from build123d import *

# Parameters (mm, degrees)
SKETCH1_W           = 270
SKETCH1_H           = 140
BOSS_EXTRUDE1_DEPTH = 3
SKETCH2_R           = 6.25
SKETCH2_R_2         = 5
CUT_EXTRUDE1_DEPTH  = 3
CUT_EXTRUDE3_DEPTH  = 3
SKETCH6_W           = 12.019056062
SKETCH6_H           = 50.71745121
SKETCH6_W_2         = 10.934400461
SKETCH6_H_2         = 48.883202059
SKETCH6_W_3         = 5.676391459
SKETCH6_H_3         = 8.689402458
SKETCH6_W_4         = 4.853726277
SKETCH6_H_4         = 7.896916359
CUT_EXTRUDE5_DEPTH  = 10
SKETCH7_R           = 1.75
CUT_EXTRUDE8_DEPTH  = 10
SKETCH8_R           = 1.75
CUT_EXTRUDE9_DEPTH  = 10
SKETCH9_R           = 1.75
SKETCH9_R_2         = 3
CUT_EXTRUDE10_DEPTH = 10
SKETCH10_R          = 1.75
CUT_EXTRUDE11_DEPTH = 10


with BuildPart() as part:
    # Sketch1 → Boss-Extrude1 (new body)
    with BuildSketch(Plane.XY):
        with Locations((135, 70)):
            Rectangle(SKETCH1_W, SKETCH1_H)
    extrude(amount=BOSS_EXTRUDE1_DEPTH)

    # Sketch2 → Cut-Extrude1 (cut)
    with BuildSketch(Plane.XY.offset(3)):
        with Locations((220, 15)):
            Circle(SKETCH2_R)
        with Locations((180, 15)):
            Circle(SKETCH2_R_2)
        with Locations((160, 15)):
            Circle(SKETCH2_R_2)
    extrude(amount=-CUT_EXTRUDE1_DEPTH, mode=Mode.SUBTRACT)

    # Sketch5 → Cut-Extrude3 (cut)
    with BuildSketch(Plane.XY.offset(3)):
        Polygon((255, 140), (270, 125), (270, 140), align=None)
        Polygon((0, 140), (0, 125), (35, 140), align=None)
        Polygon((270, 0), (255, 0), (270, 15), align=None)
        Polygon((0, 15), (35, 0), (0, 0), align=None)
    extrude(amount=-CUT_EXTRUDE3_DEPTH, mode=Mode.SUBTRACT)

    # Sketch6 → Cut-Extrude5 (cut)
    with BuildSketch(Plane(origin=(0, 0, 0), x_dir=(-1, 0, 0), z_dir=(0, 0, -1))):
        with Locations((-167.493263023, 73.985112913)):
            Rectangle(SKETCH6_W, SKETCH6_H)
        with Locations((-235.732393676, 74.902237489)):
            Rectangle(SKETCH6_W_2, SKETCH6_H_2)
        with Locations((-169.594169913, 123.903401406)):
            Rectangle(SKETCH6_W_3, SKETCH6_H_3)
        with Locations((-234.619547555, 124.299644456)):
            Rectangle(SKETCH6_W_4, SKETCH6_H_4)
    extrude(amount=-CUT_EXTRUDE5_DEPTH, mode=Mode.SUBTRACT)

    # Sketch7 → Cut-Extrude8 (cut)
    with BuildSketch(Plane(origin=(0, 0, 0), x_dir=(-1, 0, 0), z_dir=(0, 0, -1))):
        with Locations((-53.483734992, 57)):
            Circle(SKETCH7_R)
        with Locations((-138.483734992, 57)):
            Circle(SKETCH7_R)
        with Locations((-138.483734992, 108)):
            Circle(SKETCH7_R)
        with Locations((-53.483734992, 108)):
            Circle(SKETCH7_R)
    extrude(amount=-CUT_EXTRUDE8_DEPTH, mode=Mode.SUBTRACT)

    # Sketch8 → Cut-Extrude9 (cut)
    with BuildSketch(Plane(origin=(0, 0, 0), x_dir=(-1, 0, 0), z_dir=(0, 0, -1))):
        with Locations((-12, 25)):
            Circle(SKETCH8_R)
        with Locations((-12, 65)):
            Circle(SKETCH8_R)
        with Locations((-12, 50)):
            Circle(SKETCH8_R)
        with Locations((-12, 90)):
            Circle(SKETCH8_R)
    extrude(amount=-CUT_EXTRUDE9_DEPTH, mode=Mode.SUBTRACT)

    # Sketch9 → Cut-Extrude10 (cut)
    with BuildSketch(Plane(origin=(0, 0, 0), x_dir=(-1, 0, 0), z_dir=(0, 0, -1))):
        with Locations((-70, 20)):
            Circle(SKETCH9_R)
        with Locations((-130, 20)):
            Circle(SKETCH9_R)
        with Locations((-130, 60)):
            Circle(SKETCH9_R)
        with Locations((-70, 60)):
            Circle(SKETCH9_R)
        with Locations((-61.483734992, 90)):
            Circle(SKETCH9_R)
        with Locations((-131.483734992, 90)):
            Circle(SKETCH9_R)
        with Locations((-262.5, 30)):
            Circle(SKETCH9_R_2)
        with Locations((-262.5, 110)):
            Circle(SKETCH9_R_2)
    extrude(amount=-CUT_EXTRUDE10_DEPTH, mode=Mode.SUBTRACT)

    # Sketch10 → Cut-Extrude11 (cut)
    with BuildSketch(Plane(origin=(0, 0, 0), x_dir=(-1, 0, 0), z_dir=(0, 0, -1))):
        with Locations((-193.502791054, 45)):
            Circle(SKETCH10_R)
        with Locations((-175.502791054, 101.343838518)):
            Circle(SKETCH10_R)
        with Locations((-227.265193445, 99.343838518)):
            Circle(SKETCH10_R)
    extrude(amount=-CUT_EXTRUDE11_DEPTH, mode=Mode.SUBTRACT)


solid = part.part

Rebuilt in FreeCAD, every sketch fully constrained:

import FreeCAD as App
import Part
import Sketcher
Q = App.Units.Quantity

doc = App.newDocument("Part")
body = doc.addObject("PartDesign::Body", "Body")

# Sketch on XY plane
sketch1 = body.newObject("Sketcher::SketchObject", "Sketch")
sketch1.AttachmentSupport = (doc.getObject("XY_Plane"), [""])
sketch1.MapMode = "FlatFace"
sketch1.addGeometry([
    Part.LineSegment(App.Vector(0, 140, 0), App.Vector(0, 0, 0)),
    Part.LineSegment(App.Vector(0, 0, 0), App.Vector(270, 0, 0)),
    Part.LineSegment(App.Vector(270, 0, 0), App.Vector(270, 140, 0)),
    Part.LineSegment(App.Vector(270, 140, 0), App.Vector(0, 140, 0)),
], False)
sketch1.addConstraint([
    Sketcher.Constraint("Coincident", 0, 2, 1, 1),
    Sketcher.Constraint("Coincident", 1, 2, 2, 1),
    Sketcher.Constraint("Coincident", 2, 2, 3, 1),
    Sketcher.Constraint("Coincident", 3, 2, 0, 1),
    Sketcher.Constraint("Vertical", 0),
    Sketcher.Constraint("Horizontal", 1),
    Sketcher.Constraint("Vertical", 2),
    Sketcher.Constraint("Horizontal", 3),
    Sketcher.Constraint("Coincident", 0, 2, -1, 1),
    Sketcher.Constraint("DistanceX", 1, 1, 1, 2, Q("270 mm")),
    Sketcher.Constraint("DistanceY", 0, 2, 0, 1, Q("140 mm")),
])
pad1 = body.newObject("PartDesign::Pad", "Pad")
pad1.Profile = sketch1
pad1.Length = 3

# Sketch on XY plane
sketch2 = body.newObject("Sketcher::SketchObject", "Sketch001")
sketch2.AttachmentSupport = (doc.getObject("XY_Plane"), [""])
sketch2.MapMode = "FlatFace"
sketch2.AttachmentOffset = App.Placement(App.Vector(0, 0, 3), App.Rotation())
sketch2.addGeometry([
    Part.Circle(App.Vector(220, 15, 0), App.Vector(0, 0, 1), 6),
    Part.Circle(App.Vector(180, 15, 0), App.Vector(0, 0, 1), 5),
    Part.Circle(App.Vector(160, 15, 0), App.Vector(0, 0, 1), 5),
], False)
sketch2.addConstraint([
    Sketcher.Constraint("Equal", 1, 2),
    Sketcher.Constraint("Horizontal", 0, 3, 1, 3),
    Sketcher.Constraint("Horizontal", 1, 3, 2, 3),
    Sketcher.Constraint("Diameter", 1, Q("10 mm")),
    Sketcher.Constraint("Diameter", 0, Q("12.5 mm")),
    Sketcher.Constraint("DistanceX", -1, 1, 0, 3, Q("220 mm")),
    Sketcher.Constraint("DistanceY", -1, 1, 0, 3, Q("15 mm")),
    Sketcher.Constraint("DistanceX", -1, 1, 1, 3, Q("180 mm")),
    Sketcher.Constraint("DistanceX", -1, 1, 2, 3, Q("160 mm")),
])
pocket1 = body.newObject("PartDesign::Pocket", "Pocket")
pocket1.Profile = sketch2
pocket1.Length = 3

# Sketch on XY plane
sketch3 = body.newObject("Sketcher::SketchObject", "Sketch002")
sketch3.AttachmentSupport = (doc.getObject("XY_Plane"), [""])
sketch3.MapMode = "FlatFace"
sketch3.AttachmentOffset = App.Placement(App.Vector(0, 0, 3), App.Rotation())
sketch3.addGeometry([
    Part.LineSegment(App.Vector(255, 140, 0), App.Vector(270, 125, 0)),  # 0
    Part.LineSegment(App.Vector(270, 125, 0), App.Vector(270, 140, 0)),  # 1
    Part.LineSegment(App.Vector(270, 140, 0), App.Vector(255, 140, 0)),  # 2
    Part.LineSegment(App.Vector(0, 140, 0), App.Vector(0, 125, 0)),  # 3
    Part.LineSegment(App.Vector(0, 125, 0), App.Vector(35, 140, 0)),  # 4
    Part.LineSegment(App.Vector(35, 140, 0), App.Vector(0, 140, 0)),  # 5
    Part.LineSegment(App.Vector(255, 0, 0), App.Vector(270, 0, 0)),  # 6
    Part.LineSegment(App.Vector(270, 0, 0), App.Vector(270, 15, 0)),  # 7
    Part.LineSegment(App.Vector(270, 15, 0), App.Vector(255, 0, 0)),  # 8
    Part.LineSegment(App.Vector(35, 0, 0), App.Vector(0, 15, 0)),  # 9
    Part.LineSegment(App.Vector(0, 15, 0), App.Vector(0, 0, 0)),  # 10
    Part.LineSegment(App.Vector(0, 0, 0), App.Vector(35, 0, 0)),  # 11
], False)
sketch3.addConstraint([
    Sketcher.Constraint("Coincident", 0, 2, 1, 1),
    Sketcher.Constraint("Coincident", 1, 2, 2, 1),
    Sketcher.Constraint("Coincident", 2, 2, 0, 1),
    Sketcher.Constraint("Coincident", 3, 2, 4, 1),
    Sketcher.Constraint("Coincident", 4, 2, 5, 1),
    Sketcher.Constraint("Coincident", 5, 2, 3, 1),
    Sketcher.Constraint("Coincident", 6, 2, 7, 1),
    Sketcher.Constraint("Coincident", 7, 2, 8, 1),
    Sketcher.Constraint("Coincident", 8, 2, 6, 1),
    Sketcher.Constraint("Coincident", 9, 2, 10, 1),
    Sketcher.Constraint("Coincident", 10, 2, 11, 1),
    Sketcher.Constraint("Coincident", 11, 2, 9, 1),
    Sketcher.Constraint("Vertical", 1),
    Sketcher.Constraint("Horizontal", 2),
    Sketcher.Constraint("Vertical", 3),
    Sketcher.Constraint("Horizontal", 5),
    Sketcher.Constraint("Horizontal", 6),
    Sketcher.Constraint("Vertical", 7),
    Sketcher.Constraint("Vertical", 10),
    Sketcher.Constraint("Horizontal", 11),
    Sketcher.Constraint("Coincident", 10, 2, -1, 1),
    Sketcher.Constraint("PointOnObject", 3, 2, -2),
    Sketcher.Constraint("PointOnObject", 6, 2, -1),
    Sketcher.Constraint("Perpendicular", 0, 8),
    Sketcher.Constraint("Horizontal", 0, 2, 3, 2),
    Sketcher.Constraint("Horizontal", 2, 2, 4, 2),
    Sketcher.Constraint("Horizontal", 7, 2, 9, 2),
    Sketcher.Constraint("Vertical", 1, 2, 6, 2),
    Sketcher.Constraint("Vertical", 2, 2, 8, 2),
    Sketcher.Constraint("Vertical", 4, 2, 11, 2),
    Sketcher.Constraint("Equal", 6, 1),
    Sketcher.Constraint("DistanceX", 2, 2, 2, 1, Q("15 mm")),
    Sketcher.Constraint("DistanceX", 5, 2, 5, 1, Q("35 mm")),
    Sketcher.Constraint("DistanceX", -1, 1, 0, 2, Q("270 mm")),
    Sketcher.Constraint("DistanceY", -1, 1, 0, 2, Q("125 mm")),
])
pocket2 = body.newObject("PartDesign::Pocket", "Pocket001")
pocket2.Profile = sketch3
pocket2.Length = 3

# Sketch on XY plane
sketch4 = body.newObject("Sketcher::SketchObject", "Sketch003")
sketch4.AttachmentSupport = (doc.getObject("XY_Plane"), [""])
sketch4.MapMode = "FlatFace"
sketch4.addGeometry([
    Part.LineSegment(App.Vector(173.5, 99.3, 0), App.Vector(173.5, 48.6, 0)),  # 0
    Part.LineSegment(App.Vector(173.5, 48.6, 0), App.Vector(161.5, 48.6, 0)),  # 1
    Part.LineSegment(App.Vector(161.5, 48.6, 0), App.Vector(161.5, 99.3, 0)),  # 2
    Part.LineSegment(App.Vector(161.5, 99.3, 0), App.Vector(173.5, 99.3, 0)),  # 3
    Part.LineSegment(App.Vector(241.2, 99.3, 0), App.Vector(241.2, 50.5, 0)),  # 4
    Part.LineSegment(App.Vector(241.2, 50.5, 0), App.Vector(230.3, 50.5, 0)),  # 5
    Part.LineSegment(App.Vector(230.3, 50.5, 0), App.Vector(230.3, 99.3, 0)),  # 6
    Part.LineSegment(App.Vector(230.3, 99.3, 0), App.Vector(241.2, 99.3, 0)),  # 7
    Part.LineSegment(App.Vector(172.4, 128.2, 0), App.Vector(172.4, 119.6, 0)),  # 8
    Part.LineSegment(App.Vector(172.4, 119.6, 0), App.Vector(166.8, 119.6, 0)),  # 9
    Part.LineSegment(App.Vector(166.8, 119.6, 0), App.Vector(166.8, 128.2, 0)),  # 10
    Part.LineSegment(App.Vector(166.8, 128.2, 0), App.Vector(172.4, 128.2, 0)),  # 11
    Part.LineSegment(App.Vector(237, 128.2, 0), App.Vector(237, 120.4, 0)),  # 12
    Part.LineSegment(App.Vector(237, 120.4, 0), App.Vector(232.2, 120.4, 0)),  # 13
    Part.LineSegment(App.Vector(232.2, 120.4, 0), App.Vector(232.2, 128.2, 0)),  # 14
    Part.LineSegment(App.Vector(232.2, 128.2, 0), App.Vector(237, 128.2, 0)),  # 15
], False)
sketch4.addConstraint([
    Sketcher.Constraint("Coincident", 0, 2, 1, 1),
    Sketcher.Constraint("Coincident", 1, 2, 2, 1),
    Sketcher.Constraint("Coincident", 2, 2, 3, 1),
    Sketcher.Constraint("Coincident", 3, 2, 0, 1),
    Sketcher.Constraint("Coincident", 4, 2, 5, 1),
    Sketcher.Constraint("Coincident", 5, 2, 6, 1),
    Sketcher.Constraint("Coincident", 6, 2, 7, 1),
    Sketcher.Constraint("Coincident", 7, 2, 4, 1),
    Sketcher.Constraint("Coincident", 8, 2, 9, 1),
    Sketcher.Constraint("Coincident", 9, 2, 10, 1),
    Sketcher.Constraint("Coincident", 10, 2, 11, 1),
    Sketcher.Constraint("Coincident", 11, 2, 8, 1),
    Sketcher.Constraint("Coincident", 12, 2, 13, 1),
    Sketcher.Constraint("Coincident", 13, 2, 14, 1),
    Sketcher.Constraint("Coincident", 14, 2, 15, 1),
    Sketcher.Constraint("Coincident", 15, 2, 12, 1),
    Sketcher.Constraint("Vertical", 0),
    Sketcher.Constraint("Horizontal", 1),
    Sketcher.Constraint("Vertical", 2),
    Sketcher.Constraint("Horizontal", 3),
    Sketcher.Constraint("Vertical", 4),
    Sketcher.Constraint("Horizontal", 5),
    Sketcher.Constraint("Vertical", 6),
    Sketcher.Constraint("Horizontal", 7),
    Sketcher.Constraint("Vertical", 8),
    Sketcher.Constraint("Horizontal", 9),
    Sketcher.Constraint("Vertical", 10),
    Sketcher.Constraint("Horizontal", 11),
    Sketcher.Constraint("Vertical", 12),
    Sketcher.Constraint("Horizontal", 13),
    Sketcher.Constraint("Vertical", 14),
    Sketcher.Constraint("Horizontal", 15),
    Sketcher.Constraint("Horizontal", 3, 2, 6, 2),
    Sketcher.Constraint("Horizontal", 11, 2, 14, 2),
    Sketcher.Constraint("DistanceX", 5, 2, 5, 1, Q("10.9344 mm")),
    Sketcher.Constraint("DistanceX", 9, 2, 9, 1, Q("5.676391 mm")),
    Sketcher.Constraint("DistanceY", 0, 2, 0, 1, Q("50.717451 mm")),
    Sketcher.Constraint("DistanceY", -1, 1, 8, 2, Q("119.5587 mm")),
    Sketcher.Constraint("DistanceX", 1, 2, 1, 1, Q("12.019056 mm")),
    Sketcher.Constraint("DistanceX", 13, 2, 13, 1, Q("4.853726 mm")),
    Sketcher.Constraint("DistanceY", 4, 2, 4, 1, Q("48.883202 mm")),
    Sketcher.Constraint("DistanceY", 8, 2, 8, 1, Q("8.689402 mm")),
    Sketcher.Constraint("DistanceY", 12, 2, 12, 1, Q("7.896916 mm")),
    Sketcher.Constraint("DistanceX", -1, 1, 0, 2, Q("173.502791 mm")),
    Sketcher.Constraint("DistanceY", -1, 1, 2, 2, Q("99.343839 mm")),
    Sketcher.Constraint("DistanceX", -1, 1, 12, 2, Q("237.046411 mm")),
    Sketcher.Constraint("DistanceX", 1, 2, 4, 2, Q("79.715859 mm")),
    Sketcher.Constraint("DistanceX", 2, 2, 8, 2, Q("10.948631 mm")),
])
pocket3 = body.newObject("PartDesign::Pocket", "Pocket002")
pocket3.Profile = sketch4
pocket3.Length = 10
pocket3.Reversed = True

# Sketch on XY plane
sketch5 = body.newObject("Sketcher::SketchObject", "Sketch004")
sketch5.AttachmentSupport = (doc.getObject("XY_Plane"), [""])
sketch5.MapMode = "FlatFace"
sketch5.addGeometry([
    Part.Circle(App.Vector(53.5, 57, 0), App.Vector(0, 0, 1), 1.8),
    Part.Circle(App.Vector(138.5, 57, 0), App.Vector(0, 0, 1), 1.8),
    Part.Circle(App.Vector(138.5, 108, 0), App.Vector(0, 0, 1), 1.8),
    Part.Circle(App.Vector(53.5, 108, 0), App.Vector(0, 0, 1), 1.8),
], False)
sketch5.addConstraint([
    Sketcher.Constraint("Equal", 0, 1),
    Sketcher.Constraint("Equal", 1, 2),
    Sketcher.Constraint("Equal", 2, 3),
    Sketcher.Constraint("Horizontal", 0, 3, 1, 3),
    Sketcher.Constraint("Horizontal", 2, 3, 3, 3),
    Sketcher.Constraint("Vertical", 1, 3, 2, 3),
    Sketcher.Constraint("Vertical", 0, 3, 3, 3),
    Sketcher.Constraint("Diameter", 0, Q("3.5 mm")),
    Sketcher.Constraint("DistanceY", -1, 1, 0, 3, Q("57 mm")),
    Sketcher.Constraint("DistanceY", -1, 1, 2, 3, Q("108 mm")),
    Sketcher.Constraint("DistanceX", 0, 3, 1, 3, Q("85 mm")),
    Sketcher.Constraint("DistanceX", -1, 1, 0, 3, Q("53.483735 mm")),
])
pocket4 = body.newObject("PartDesign::Pocket", "Pocket003")
pocket4.Profile = sketch5
pocket4.Length = 10
pocket4.Reversed = True

# Sketch on XY plane
sketch6 = body.newObject("Sketcher::SketchObject", "Sketch005")
sketch6.AttachmentSupport = (doc.getObject("XY_Plane"), [""])
sketch6.MapMode = "FlatFace"
sketch6.addGeometry([
    Part.Circle(App.Vector(12, 25, 0), App.Vector(0, 0, 1), 1.8),
    Part.Circle(App.Vector(12, 65, 0), App.Vector(0, 0, 1), 1.8),
    Part.Circle(App.Vector(12, 50, 0), App.Vector(0, 0, 1), 1.8),
    Part.Circle(App.Vector(12, 90, 0), App.Vector(0, 0, 1), 1.8),
], False)
sketch6.addConstraint([
    Sketcher.Constraint("Equal", 0, 1),
    Sketcher.Constraint("Equal", 1, 2),
    Sketcher.Constraint("Equal", 2, 3),
    Sketcher.Constraint("Vertical", 0, 3, 1, 3),
    Sketcher.Constraint("Vertical", 1, 3, 2, 3),
    Sketcher.Constraint("Vertical", 2, 3, 3, 3),
    Sketcher.Constraint("Diameter", 0, Q("3.5 mm")),
    Sketcher.Constraint("DistanceX", -1, 1, 0, 3, Q("12 mm")),
    Sketcher.Constraint("DistanceY", -1, 1, 0, 3, Q("25 mm")),
    Sketcher.Constraint("DistanceY", -1, 1, 1, 3, Q("65 mm")),
    Sketcher.Constraint("DistanceY", -1, 1, 2, 3, Q("50 mm")),
    Sketcher.Constraint("DistanceY", -1, 1, 3, 3, Q("90 mm")),
])
pocket5 = body.newObject("PartDesign::Pocket", "Pocket004")
pocket5.Profile = sketch6
pocket5.Length = 10
pocket5.Reversed = True

# Sketch on XY plane
sketch7 = body.newObject("Sketcher::SketchObject", "Sketch006")
sketch7.AttachmentSupport = (doc.getObject("XY_Plane"), [""])
sketch7.MapMode = "FlatFace"
sketch7.addGeometry([
    Part.Circle(App.Vector(70, 20, 0), App.Vector(0, 0, 1), 1.8),  # 0
    Part.Circle(App.Vector(130, 20, 0), App.Vector(0, 0, 1), 1.8),  # 1
    Part.Circle(App.Vector(130, 60, 0), App.Vector(0, 0, 1), 1.8),  # 2
    Part.Circle(App.Vector(70, 60, 0), App.Vector(0, 0, 1), 1.8),  # 3
    Part.Circle(App.Vector(61.5, 90, 0), App.Vector(0, 0, 1), 1.8),  # 4
    Part.Circle(App.Vector(131.5, 90, 0), App.Vector(0, 0, 1), 1.8),  # 5
    Part.Circle(App.Vector(262.5, 30, 0), App.Vector(0, 0, 1), 3),  # 6
    Part.Circle(App.Vector(262.5, 110, 0), App.Vector(0, 0, 1), 3),  # 7
], False)
sketch7.addConstraint([
    Sketcher.Constraint("Equal", 0, 1),
    Sketcher.Constraint("Equal", 1, 2),
    Sketcher.Constraint("Equal", 2, 3),
    Sketcher.Constraint("Equal", 3, 4),
    Sketcher.Constraint("Equal", 4, 5),
    Sketcher.Constraint("Equal", 6, 7),
    Sketcher.Constraint("Horizontal", 0, 3, 1, 3),
    Sketcher.Constraint("Horizontal", 2, 3, 3, 3),
    Sketcher.Constraint("Horizontal", 4, 3, 5, 3),
    Sketcher.Constraint("Vertical", 1, 3, 2, 3),
    Sketcher.Constraint("Vertical", 0, 3, 3, 3),
    Sketcher.Constraint("Vertical", 6, 3, 7, 3),
    Sketcher.Constraint("Diameter", 6, Q("6 mm")),
    Sketcher.Constraint("Diameter", 0, Q("3.5 mm")),
    Sketcher.Constraint("DistanceX", -1, 1, 0, 3, Q("70 mm")),
    Sketcher.Constraint("DistanceY", -1, 1, 0, 3, Q("20 mm")),
    Sketcher.Constraint("DistanceX", -1, 1, 1, 3, Q("130 mm")),
    Sketcher.Constraint("DistanceY", -1, 1, 2, 3, Q("60 mm")),
    Sketcher.Constraint("DistanceY", -1, 1, 4, 3, Q("90 mm")),
    Sketcher.Constraint("DistanceY", -1, 1, 6, 3, Q("30 mm")),
    Sketcher.Constraint("DistanceY", -1, 1, 7, 3, Q("110 mm")),
    Sketcher.Constraint("DistanceX", 4, 3, 5, 3, Q("70 mm")),
    Sketcher.Constraint("DistanceX", -1, 1, 6, 3, Q("262.5 mm")),
    Sketcher.Constraint("DistanceX", -1, 1, 4, 3, Q("61.483735 mm")),
])
pocket6 = body.newObject("PartDesign::Pocket", "Pocket005")
pocket6.Profile = sketch7
pocket6.Length = 10
pocket6.Reversed = True

# Sketch on XY plane
sketch8 = body.newObject("Sketcher::SketchObject", "Sketch007")
sketch8.AttachmentSupport = (doc.getObject("XY_Plane"), [""])
sketch8.MapMode = "FlatFace"
sketch8.addGeometry([
    Part.Circle(App.Vector(193.5, 45, 0), App.Vector(0, 0, 1), 1.8),
    Part.Circle(App.Vector(175.5, 101.3, 0), App.Vector(0, 0, 1), 1.8),
    Part.Circle(App.Vector(227.3, 99.3, 0), App.Vector(0, 0, 1), 1.8),
], False)
sketch8.addConstraint([
    Sketcher.Constraint("Equal", 0, 1),
    Sketcher.Constraint("Equal", 1, 2),
    Sketcher.Constraint("Diameter", 0, Q("3.5 mm")),
    Sketcher.Constraint("DistanceY", -1, 1, 0, 3, Q("45 mm")),
    Sketcher.Constraint("DistanceX", 1, 3, 0, 3, Q("18 mm")),
    Sketcher.Constraint("DistanceY", 2, 3, 1, 3, Q("2 mm")),
    Sketcher.Constraint("DistanceX", -1, 1, 0, 3, Q("193.502791 mm")),
    Sketcher.Constraint("DistanceY", -1, 1, 1, 3, Q("101.343839 mm")),
    Sketcher.Constraint("DistanceX", -1, 1, 2, 3, Q("227.265193 mm")),
])
pocket7 = body.newObject("PartDesign::Pocket", "Pocket006")
pocket7.Profile = sketch8
pocket7.Length = 10
pocket7.Reversed = True

doc.recompute()
